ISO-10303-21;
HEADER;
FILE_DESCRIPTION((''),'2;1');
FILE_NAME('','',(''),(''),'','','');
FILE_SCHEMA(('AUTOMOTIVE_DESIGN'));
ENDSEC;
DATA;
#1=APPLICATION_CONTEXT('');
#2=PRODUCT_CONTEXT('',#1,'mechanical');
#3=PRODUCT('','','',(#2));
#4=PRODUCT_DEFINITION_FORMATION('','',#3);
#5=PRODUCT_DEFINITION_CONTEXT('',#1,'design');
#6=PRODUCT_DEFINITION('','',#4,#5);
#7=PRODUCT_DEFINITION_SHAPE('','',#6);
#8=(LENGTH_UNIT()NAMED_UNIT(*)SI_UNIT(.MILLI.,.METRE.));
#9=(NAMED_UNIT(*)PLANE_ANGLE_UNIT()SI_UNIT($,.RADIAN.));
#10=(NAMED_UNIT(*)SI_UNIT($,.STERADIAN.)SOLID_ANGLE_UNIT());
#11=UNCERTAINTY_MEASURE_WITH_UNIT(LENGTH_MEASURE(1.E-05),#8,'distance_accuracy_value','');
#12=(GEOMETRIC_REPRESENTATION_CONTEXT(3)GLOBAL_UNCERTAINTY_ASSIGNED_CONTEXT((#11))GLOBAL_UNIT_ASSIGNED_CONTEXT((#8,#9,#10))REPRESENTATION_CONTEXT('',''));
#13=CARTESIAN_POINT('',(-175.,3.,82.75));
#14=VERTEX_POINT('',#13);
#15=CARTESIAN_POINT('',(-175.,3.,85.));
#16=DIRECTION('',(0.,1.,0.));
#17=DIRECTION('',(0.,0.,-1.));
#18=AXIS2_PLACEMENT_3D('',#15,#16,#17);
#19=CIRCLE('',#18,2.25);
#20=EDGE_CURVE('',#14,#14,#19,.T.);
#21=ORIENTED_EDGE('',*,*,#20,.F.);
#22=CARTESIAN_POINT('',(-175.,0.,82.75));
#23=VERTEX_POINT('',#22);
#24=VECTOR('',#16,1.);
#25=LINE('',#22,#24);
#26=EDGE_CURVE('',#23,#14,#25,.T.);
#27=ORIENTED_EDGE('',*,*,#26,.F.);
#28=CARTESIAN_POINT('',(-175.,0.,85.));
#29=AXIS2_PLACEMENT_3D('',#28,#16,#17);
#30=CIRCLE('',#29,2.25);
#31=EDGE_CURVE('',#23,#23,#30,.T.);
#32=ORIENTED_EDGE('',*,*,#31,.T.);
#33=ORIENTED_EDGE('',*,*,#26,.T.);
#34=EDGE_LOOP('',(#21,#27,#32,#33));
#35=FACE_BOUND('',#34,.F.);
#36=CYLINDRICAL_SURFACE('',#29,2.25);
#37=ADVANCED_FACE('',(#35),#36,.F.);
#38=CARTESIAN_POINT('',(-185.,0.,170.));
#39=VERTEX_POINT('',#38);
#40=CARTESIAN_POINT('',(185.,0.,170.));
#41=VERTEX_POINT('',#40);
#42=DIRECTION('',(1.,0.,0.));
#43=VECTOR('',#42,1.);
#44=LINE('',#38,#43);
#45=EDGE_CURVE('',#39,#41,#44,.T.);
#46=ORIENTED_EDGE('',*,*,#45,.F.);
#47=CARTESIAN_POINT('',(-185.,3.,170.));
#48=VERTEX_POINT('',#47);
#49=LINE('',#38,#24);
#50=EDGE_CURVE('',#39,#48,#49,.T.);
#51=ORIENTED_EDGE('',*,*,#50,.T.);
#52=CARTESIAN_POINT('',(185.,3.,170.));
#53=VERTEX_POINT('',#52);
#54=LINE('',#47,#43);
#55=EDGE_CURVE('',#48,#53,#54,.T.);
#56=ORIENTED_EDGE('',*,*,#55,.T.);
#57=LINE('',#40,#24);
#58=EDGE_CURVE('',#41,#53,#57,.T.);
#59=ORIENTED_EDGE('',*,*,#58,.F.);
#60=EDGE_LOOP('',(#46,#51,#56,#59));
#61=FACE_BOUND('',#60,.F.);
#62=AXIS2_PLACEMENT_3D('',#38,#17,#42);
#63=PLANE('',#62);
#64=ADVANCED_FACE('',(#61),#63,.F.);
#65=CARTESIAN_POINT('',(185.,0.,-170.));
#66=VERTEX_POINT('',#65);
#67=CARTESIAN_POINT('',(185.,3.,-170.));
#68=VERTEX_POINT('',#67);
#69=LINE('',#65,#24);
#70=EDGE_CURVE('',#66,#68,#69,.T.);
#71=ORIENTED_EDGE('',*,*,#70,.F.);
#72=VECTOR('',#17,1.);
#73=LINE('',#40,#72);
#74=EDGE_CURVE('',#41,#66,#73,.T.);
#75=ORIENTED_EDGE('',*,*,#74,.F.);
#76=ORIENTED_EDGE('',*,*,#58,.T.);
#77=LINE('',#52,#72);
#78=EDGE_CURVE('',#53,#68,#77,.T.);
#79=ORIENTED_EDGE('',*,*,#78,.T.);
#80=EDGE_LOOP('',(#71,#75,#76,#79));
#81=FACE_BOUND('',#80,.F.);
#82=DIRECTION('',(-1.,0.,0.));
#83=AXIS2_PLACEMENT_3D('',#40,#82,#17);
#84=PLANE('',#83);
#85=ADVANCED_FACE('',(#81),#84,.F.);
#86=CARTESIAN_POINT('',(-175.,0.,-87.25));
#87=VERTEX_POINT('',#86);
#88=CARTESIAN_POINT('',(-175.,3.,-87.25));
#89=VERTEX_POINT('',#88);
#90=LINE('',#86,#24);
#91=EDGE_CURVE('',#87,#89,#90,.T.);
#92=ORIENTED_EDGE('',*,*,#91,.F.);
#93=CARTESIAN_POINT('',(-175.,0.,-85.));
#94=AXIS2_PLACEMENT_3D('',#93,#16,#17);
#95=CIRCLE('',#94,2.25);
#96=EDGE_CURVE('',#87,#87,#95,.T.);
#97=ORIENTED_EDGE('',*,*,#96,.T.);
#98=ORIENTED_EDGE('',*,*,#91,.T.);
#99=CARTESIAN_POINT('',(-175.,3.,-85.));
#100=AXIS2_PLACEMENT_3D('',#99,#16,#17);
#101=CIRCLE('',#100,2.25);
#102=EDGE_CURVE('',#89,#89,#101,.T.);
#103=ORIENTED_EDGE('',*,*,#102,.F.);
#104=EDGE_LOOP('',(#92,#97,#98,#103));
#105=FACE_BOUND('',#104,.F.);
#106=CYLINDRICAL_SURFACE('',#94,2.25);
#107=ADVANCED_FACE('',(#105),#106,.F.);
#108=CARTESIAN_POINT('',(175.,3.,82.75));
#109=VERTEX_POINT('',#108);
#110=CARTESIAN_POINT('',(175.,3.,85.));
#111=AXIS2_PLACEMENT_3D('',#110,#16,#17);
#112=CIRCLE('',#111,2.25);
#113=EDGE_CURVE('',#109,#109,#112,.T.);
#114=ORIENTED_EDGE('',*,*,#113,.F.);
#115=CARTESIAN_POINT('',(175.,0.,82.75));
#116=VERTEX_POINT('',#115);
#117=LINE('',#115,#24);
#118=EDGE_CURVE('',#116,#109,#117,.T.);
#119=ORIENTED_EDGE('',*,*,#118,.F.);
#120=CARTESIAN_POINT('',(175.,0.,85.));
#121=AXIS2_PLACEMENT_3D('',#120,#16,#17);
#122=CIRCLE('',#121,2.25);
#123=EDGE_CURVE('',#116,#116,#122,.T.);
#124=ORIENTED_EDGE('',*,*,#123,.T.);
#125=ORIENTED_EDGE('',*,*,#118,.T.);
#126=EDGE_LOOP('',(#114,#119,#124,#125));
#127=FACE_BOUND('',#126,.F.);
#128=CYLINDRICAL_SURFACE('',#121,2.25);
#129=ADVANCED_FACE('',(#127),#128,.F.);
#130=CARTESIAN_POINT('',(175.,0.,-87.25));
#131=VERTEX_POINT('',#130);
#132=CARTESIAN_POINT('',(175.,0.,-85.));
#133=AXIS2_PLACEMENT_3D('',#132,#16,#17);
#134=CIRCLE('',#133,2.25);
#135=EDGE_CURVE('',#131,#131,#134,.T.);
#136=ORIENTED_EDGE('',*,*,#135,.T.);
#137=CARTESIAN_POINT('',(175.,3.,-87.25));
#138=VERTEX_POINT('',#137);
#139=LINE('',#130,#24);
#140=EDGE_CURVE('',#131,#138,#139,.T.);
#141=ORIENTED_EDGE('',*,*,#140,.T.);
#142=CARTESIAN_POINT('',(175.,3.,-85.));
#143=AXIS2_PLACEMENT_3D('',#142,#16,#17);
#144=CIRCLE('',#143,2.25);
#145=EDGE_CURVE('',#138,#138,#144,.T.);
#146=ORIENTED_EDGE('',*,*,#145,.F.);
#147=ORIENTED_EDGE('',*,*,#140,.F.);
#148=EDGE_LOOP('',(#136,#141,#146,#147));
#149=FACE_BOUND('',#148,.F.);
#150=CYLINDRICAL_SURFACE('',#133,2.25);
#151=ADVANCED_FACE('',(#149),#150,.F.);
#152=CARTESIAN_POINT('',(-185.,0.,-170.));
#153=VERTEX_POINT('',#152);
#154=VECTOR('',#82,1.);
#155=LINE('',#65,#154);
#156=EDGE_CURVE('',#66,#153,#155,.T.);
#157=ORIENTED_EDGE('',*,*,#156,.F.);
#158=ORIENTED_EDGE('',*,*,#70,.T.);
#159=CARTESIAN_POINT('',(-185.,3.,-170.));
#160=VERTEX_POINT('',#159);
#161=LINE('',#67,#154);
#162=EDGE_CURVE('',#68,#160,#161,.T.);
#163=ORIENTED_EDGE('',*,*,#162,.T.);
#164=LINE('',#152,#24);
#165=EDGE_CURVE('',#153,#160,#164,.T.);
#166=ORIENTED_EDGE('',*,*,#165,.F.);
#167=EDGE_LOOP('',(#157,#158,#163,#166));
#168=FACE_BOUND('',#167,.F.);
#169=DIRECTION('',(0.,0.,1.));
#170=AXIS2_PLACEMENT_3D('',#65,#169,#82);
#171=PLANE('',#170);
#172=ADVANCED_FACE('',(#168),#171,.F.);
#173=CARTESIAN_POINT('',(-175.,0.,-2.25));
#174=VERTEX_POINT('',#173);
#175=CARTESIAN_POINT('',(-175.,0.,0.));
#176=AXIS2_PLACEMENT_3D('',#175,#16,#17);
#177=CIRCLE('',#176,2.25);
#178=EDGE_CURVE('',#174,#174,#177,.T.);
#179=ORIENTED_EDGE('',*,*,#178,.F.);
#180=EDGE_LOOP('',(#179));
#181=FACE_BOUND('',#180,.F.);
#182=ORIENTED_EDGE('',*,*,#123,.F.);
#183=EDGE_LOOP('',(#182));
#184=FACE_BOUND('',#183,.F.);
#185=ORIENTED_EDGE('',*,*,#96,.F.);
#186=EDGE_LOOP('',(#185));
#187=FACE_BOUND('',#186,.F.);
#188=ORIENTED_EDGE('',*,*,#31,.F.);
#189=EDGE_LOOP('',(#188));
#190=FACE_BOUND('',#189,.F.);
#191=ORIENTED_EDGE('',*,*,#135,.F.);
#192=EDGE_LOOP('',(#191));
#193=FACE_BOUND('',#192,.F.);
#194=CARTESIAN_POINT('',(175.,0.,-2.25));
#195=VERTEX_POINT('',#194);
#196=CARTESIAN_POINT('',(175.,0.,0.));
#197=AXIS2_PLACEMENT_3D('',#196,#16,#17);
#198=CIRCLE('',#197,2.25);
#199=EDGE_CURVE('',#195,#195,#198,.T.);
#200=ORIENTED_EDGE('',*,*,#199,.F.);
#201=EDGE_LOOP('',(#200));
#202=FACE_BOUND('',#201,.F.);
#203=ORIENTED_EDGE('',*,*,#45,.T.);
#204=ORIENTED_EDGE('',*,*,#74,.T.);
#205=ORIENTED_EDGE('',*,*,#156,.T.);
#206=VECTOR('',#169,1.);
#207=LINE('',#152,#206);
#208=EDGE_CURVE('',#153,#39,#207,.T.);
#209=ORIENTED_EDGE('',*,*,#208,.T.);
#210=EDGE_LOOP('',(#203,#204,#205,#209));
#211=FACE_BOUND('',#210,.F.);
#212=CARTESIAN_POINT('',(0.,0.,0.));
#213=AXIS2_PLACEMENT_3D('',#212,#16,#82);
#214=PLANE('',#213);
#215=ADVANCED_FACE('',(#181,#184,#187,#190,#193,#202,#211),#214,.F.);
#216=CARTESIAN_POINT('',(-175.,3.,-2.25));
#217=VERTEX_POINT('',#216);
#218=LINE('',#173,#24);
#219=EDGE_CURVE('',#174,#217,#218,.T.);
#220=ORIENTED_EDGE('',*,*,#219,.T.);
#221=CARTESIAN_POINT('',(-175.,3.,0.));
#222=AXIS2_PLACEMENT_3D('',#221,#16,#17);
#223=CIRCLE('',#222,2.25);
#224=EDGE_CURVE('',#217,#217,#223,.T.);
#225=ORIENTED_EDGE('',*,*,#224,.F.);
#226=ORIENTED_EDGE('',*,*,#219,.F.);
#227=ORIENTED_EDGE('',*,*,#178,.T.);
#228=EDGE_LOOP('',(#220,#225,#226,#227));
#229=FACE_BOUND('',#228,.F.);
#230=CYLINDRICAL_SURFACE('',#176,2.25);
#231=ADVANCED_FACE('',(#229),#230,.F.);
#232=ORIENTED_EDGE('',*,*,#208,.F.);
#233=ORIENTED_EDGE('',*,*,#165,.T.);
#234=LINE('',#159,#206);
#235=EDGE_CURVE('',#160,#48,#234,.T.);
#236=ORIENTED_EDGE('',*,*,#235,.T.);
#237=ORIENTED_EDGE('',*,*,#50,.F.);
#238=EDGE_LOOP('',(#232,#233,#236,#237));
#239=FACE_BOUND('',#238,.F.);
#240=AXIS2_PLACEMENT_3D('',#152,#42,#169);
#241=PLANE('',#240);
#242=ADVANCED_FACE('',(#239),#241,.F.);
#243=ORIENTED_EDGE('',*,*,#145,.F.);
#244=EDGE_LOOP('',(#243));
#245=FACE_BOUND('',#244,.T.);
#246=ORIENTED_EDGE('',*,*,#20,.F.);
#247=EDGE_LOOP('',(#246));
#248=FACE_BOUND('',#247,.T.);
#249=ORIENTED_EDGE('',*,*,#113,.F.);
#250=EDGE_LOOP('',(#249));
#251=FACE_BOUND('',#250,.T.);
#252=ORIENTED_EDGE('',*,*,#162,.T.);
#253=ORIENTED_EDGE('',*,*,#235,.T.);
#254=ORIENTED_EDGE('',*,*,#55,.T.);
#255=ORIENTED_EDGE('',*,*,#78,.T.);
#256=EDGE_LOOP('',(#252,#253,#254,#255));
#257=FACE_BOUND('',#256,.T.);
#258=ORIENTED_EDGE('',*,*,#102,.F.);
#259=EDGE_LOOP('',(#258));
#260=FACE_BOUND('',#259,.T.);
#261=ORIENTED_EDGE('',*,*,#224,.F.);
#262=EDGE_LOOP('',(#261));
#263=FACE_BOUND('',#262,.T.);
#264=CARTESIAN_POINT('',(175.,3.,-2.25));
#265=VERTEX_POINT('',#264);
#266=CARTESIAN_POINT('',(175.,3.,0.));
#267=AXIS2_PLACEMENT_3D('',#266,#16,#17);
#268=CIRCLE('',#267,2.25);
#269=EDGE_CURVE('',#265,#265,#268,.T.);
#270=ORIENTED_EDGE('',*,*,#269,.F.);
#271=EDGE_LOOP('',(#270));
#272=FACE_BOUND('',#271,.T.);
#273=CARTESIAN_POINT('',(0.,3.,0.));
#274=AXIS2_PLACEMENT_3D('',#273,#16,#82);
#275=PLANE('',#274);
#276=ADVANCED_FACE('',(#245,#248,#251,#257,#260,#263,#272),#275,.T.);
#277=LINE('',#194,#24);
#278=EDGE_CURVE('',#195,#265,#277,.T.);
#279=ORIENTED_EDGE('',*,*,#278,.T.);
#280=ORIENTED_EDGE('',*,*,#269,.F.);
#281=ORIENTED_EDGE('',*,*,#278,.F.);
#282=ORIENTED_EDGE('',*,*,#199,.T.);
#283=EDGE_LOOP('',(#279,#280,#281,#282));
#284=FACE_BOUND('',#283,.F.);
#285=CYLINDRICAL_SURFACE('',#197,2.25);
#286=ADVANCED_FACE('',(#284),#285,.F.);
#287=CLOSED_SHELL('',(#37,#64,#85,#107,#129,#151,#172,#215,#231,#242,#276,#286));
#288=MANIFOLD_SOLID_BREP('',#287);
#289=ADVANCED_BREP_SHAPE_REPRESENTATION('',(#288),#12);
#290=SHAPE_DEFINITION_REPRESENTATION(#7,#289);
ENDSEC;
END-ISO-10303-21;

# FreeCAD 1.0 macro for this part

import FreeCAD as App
import Part
import Sketcher
Q = App.Units.Quantity

doc = App.newDocument("Part")
body = doc.addObject("PartDesign::Body", "Body")

# Sketch on XZ plane
sketch1 = doc.addObject("Sketcher::SketchObject", "Sketch")
body.addObject(sketch1)
sketch1.AttachmentSupport = (doc.XZ_Plane, [""])
sketch1.MapMode = "FlatFace"
sketch1.addGeometry([
    Part.LineSegment(App.Vector(-185, -170, 0), App.Vector(-185, 170, 0)),
    Part.LineSegment(App.Vector(-185, 170, 0), App.Vector(185, 170, 0)),
    Part.LineSegment(App.Vector(185, 170, 0), App.Vector(185, -170, 0)),
    Part.LineSegment(App.Vector(185, -170, 0), App.Vector(-185, -170, 0)),
], False)
sketch1.addConstraint([
    Sketcher.Constraint("Coincident", 0, 2, 1, 1),
    Sketcher.Constraint("Coincident", 1, 2, 2, 1),
    Sketcher.Constraint("Coincident", 2, 2, 3, 1),
    Sketcher.Constraint("Coincident", 3, 2, 0, 1),
    Sketcher.Constraint("Vertical", 0),
    Sketcher.Constraint("Horizontal", 1),
    Sketcher.Constraint("Vertical", 2),
    Sketcher.Constraint("Horizontal", 3),
    Sketcher.Constraint("Symmetric", 0, 2, 2, 2, -1, 1),
    Sketcher.Constraint("DistanceX", 1, 1, 1, 2, Q("370 mm")),
    Sketcher.Constraint("DistanceY", 0, 1, 0, 2, Q("340 mm")),
])
pad1 = doc.addObject("PartDesign::Pad", "Pad")
body.addObject(pad1)
pad1.Profile = sketch1
pad1.Length = 3
pad1.Reversed = True

# Sketch on XZ plane
sketch2 = doc.addObject("Sketcher::SketchObject", "Sketch001")
body.addObject(sketch2)
sketch2.AttachmentSupport = (doc.XZ_Plane, [""])
sketch2.MapMode = "FlatFace"
sketch2.addGeometry([
    Part.Circle(App.Vector(-175, 0, 0), App.Vector(0, 0, 1), 2.2),  # 0
    Part.Circle(App.Vector(-175, -85, 0), App.Vector(0, 0, 1), 2.2),  # 1
    Part.Circle(App.Vector(-175, 85, 0), App.Vector(0, 0, 1), 2.2),  # 2
    Part.Circle(App.Vector(175, 85, 0), App.Vector(0, 0, 1), 2.2),  # 3
    Part.Circle(App.Vector(175, 0, 0), App.Vector(0, 0, 1), 2.2),  # 4
    Part.Circle(App.Vector(175, -85, 0), App.Vector(0, 0, 1), 2.2),  # 5
], False)
sketch2.addConstraint([
    Sketcher.Constraint("Equal", 0, 1),
    Sketcher.Constraint("Equal", 1, 2),
    Sketcher.Constraint("Equal", 2, 3),
    Sketcher.Constraint("Equal", 3, 4),
    Sketcher.Constraint("Equal", 4, 5),
    Sketcher.Constraint("Symmetric", 1, 3, 3, 3, -1, 1),
    Sketcher.Constraint("Symmetric", 0, 3, 4, 3, -1, 1),
    Sketcher.Constraint("Symmetric", 2, 3, 5, 3, -1, 1),
    Sketcher.Constraint("Symmetric", 2, 3, 3, 3, -2),
    Sketcher.Constraint("PointOnObject", 0, 3, -1),
    Sketcher.Constraint("Vertical", 0, 3, 1, 3),
    Sketcher.Constraint("Diameter", 0, Q("4.5 mm")),
    Sketcher.Constraint("DistanceX", 0, 3, -1, 1, Q("175 mm")),
    Sketcher.Constraint("DistanceY", 1, 3, -1, 1, Q("85 mm")),
])
doc.recompute()
hole = doc.addObject("PartDesign::Hole", "Hole")
body.addObject(hole)
hole.Profile = sketch2
hole.ThreadType = "None"
hole.Diameter = 4.5
hole.DepthType = "ThroughAll"

doc.recompute()
